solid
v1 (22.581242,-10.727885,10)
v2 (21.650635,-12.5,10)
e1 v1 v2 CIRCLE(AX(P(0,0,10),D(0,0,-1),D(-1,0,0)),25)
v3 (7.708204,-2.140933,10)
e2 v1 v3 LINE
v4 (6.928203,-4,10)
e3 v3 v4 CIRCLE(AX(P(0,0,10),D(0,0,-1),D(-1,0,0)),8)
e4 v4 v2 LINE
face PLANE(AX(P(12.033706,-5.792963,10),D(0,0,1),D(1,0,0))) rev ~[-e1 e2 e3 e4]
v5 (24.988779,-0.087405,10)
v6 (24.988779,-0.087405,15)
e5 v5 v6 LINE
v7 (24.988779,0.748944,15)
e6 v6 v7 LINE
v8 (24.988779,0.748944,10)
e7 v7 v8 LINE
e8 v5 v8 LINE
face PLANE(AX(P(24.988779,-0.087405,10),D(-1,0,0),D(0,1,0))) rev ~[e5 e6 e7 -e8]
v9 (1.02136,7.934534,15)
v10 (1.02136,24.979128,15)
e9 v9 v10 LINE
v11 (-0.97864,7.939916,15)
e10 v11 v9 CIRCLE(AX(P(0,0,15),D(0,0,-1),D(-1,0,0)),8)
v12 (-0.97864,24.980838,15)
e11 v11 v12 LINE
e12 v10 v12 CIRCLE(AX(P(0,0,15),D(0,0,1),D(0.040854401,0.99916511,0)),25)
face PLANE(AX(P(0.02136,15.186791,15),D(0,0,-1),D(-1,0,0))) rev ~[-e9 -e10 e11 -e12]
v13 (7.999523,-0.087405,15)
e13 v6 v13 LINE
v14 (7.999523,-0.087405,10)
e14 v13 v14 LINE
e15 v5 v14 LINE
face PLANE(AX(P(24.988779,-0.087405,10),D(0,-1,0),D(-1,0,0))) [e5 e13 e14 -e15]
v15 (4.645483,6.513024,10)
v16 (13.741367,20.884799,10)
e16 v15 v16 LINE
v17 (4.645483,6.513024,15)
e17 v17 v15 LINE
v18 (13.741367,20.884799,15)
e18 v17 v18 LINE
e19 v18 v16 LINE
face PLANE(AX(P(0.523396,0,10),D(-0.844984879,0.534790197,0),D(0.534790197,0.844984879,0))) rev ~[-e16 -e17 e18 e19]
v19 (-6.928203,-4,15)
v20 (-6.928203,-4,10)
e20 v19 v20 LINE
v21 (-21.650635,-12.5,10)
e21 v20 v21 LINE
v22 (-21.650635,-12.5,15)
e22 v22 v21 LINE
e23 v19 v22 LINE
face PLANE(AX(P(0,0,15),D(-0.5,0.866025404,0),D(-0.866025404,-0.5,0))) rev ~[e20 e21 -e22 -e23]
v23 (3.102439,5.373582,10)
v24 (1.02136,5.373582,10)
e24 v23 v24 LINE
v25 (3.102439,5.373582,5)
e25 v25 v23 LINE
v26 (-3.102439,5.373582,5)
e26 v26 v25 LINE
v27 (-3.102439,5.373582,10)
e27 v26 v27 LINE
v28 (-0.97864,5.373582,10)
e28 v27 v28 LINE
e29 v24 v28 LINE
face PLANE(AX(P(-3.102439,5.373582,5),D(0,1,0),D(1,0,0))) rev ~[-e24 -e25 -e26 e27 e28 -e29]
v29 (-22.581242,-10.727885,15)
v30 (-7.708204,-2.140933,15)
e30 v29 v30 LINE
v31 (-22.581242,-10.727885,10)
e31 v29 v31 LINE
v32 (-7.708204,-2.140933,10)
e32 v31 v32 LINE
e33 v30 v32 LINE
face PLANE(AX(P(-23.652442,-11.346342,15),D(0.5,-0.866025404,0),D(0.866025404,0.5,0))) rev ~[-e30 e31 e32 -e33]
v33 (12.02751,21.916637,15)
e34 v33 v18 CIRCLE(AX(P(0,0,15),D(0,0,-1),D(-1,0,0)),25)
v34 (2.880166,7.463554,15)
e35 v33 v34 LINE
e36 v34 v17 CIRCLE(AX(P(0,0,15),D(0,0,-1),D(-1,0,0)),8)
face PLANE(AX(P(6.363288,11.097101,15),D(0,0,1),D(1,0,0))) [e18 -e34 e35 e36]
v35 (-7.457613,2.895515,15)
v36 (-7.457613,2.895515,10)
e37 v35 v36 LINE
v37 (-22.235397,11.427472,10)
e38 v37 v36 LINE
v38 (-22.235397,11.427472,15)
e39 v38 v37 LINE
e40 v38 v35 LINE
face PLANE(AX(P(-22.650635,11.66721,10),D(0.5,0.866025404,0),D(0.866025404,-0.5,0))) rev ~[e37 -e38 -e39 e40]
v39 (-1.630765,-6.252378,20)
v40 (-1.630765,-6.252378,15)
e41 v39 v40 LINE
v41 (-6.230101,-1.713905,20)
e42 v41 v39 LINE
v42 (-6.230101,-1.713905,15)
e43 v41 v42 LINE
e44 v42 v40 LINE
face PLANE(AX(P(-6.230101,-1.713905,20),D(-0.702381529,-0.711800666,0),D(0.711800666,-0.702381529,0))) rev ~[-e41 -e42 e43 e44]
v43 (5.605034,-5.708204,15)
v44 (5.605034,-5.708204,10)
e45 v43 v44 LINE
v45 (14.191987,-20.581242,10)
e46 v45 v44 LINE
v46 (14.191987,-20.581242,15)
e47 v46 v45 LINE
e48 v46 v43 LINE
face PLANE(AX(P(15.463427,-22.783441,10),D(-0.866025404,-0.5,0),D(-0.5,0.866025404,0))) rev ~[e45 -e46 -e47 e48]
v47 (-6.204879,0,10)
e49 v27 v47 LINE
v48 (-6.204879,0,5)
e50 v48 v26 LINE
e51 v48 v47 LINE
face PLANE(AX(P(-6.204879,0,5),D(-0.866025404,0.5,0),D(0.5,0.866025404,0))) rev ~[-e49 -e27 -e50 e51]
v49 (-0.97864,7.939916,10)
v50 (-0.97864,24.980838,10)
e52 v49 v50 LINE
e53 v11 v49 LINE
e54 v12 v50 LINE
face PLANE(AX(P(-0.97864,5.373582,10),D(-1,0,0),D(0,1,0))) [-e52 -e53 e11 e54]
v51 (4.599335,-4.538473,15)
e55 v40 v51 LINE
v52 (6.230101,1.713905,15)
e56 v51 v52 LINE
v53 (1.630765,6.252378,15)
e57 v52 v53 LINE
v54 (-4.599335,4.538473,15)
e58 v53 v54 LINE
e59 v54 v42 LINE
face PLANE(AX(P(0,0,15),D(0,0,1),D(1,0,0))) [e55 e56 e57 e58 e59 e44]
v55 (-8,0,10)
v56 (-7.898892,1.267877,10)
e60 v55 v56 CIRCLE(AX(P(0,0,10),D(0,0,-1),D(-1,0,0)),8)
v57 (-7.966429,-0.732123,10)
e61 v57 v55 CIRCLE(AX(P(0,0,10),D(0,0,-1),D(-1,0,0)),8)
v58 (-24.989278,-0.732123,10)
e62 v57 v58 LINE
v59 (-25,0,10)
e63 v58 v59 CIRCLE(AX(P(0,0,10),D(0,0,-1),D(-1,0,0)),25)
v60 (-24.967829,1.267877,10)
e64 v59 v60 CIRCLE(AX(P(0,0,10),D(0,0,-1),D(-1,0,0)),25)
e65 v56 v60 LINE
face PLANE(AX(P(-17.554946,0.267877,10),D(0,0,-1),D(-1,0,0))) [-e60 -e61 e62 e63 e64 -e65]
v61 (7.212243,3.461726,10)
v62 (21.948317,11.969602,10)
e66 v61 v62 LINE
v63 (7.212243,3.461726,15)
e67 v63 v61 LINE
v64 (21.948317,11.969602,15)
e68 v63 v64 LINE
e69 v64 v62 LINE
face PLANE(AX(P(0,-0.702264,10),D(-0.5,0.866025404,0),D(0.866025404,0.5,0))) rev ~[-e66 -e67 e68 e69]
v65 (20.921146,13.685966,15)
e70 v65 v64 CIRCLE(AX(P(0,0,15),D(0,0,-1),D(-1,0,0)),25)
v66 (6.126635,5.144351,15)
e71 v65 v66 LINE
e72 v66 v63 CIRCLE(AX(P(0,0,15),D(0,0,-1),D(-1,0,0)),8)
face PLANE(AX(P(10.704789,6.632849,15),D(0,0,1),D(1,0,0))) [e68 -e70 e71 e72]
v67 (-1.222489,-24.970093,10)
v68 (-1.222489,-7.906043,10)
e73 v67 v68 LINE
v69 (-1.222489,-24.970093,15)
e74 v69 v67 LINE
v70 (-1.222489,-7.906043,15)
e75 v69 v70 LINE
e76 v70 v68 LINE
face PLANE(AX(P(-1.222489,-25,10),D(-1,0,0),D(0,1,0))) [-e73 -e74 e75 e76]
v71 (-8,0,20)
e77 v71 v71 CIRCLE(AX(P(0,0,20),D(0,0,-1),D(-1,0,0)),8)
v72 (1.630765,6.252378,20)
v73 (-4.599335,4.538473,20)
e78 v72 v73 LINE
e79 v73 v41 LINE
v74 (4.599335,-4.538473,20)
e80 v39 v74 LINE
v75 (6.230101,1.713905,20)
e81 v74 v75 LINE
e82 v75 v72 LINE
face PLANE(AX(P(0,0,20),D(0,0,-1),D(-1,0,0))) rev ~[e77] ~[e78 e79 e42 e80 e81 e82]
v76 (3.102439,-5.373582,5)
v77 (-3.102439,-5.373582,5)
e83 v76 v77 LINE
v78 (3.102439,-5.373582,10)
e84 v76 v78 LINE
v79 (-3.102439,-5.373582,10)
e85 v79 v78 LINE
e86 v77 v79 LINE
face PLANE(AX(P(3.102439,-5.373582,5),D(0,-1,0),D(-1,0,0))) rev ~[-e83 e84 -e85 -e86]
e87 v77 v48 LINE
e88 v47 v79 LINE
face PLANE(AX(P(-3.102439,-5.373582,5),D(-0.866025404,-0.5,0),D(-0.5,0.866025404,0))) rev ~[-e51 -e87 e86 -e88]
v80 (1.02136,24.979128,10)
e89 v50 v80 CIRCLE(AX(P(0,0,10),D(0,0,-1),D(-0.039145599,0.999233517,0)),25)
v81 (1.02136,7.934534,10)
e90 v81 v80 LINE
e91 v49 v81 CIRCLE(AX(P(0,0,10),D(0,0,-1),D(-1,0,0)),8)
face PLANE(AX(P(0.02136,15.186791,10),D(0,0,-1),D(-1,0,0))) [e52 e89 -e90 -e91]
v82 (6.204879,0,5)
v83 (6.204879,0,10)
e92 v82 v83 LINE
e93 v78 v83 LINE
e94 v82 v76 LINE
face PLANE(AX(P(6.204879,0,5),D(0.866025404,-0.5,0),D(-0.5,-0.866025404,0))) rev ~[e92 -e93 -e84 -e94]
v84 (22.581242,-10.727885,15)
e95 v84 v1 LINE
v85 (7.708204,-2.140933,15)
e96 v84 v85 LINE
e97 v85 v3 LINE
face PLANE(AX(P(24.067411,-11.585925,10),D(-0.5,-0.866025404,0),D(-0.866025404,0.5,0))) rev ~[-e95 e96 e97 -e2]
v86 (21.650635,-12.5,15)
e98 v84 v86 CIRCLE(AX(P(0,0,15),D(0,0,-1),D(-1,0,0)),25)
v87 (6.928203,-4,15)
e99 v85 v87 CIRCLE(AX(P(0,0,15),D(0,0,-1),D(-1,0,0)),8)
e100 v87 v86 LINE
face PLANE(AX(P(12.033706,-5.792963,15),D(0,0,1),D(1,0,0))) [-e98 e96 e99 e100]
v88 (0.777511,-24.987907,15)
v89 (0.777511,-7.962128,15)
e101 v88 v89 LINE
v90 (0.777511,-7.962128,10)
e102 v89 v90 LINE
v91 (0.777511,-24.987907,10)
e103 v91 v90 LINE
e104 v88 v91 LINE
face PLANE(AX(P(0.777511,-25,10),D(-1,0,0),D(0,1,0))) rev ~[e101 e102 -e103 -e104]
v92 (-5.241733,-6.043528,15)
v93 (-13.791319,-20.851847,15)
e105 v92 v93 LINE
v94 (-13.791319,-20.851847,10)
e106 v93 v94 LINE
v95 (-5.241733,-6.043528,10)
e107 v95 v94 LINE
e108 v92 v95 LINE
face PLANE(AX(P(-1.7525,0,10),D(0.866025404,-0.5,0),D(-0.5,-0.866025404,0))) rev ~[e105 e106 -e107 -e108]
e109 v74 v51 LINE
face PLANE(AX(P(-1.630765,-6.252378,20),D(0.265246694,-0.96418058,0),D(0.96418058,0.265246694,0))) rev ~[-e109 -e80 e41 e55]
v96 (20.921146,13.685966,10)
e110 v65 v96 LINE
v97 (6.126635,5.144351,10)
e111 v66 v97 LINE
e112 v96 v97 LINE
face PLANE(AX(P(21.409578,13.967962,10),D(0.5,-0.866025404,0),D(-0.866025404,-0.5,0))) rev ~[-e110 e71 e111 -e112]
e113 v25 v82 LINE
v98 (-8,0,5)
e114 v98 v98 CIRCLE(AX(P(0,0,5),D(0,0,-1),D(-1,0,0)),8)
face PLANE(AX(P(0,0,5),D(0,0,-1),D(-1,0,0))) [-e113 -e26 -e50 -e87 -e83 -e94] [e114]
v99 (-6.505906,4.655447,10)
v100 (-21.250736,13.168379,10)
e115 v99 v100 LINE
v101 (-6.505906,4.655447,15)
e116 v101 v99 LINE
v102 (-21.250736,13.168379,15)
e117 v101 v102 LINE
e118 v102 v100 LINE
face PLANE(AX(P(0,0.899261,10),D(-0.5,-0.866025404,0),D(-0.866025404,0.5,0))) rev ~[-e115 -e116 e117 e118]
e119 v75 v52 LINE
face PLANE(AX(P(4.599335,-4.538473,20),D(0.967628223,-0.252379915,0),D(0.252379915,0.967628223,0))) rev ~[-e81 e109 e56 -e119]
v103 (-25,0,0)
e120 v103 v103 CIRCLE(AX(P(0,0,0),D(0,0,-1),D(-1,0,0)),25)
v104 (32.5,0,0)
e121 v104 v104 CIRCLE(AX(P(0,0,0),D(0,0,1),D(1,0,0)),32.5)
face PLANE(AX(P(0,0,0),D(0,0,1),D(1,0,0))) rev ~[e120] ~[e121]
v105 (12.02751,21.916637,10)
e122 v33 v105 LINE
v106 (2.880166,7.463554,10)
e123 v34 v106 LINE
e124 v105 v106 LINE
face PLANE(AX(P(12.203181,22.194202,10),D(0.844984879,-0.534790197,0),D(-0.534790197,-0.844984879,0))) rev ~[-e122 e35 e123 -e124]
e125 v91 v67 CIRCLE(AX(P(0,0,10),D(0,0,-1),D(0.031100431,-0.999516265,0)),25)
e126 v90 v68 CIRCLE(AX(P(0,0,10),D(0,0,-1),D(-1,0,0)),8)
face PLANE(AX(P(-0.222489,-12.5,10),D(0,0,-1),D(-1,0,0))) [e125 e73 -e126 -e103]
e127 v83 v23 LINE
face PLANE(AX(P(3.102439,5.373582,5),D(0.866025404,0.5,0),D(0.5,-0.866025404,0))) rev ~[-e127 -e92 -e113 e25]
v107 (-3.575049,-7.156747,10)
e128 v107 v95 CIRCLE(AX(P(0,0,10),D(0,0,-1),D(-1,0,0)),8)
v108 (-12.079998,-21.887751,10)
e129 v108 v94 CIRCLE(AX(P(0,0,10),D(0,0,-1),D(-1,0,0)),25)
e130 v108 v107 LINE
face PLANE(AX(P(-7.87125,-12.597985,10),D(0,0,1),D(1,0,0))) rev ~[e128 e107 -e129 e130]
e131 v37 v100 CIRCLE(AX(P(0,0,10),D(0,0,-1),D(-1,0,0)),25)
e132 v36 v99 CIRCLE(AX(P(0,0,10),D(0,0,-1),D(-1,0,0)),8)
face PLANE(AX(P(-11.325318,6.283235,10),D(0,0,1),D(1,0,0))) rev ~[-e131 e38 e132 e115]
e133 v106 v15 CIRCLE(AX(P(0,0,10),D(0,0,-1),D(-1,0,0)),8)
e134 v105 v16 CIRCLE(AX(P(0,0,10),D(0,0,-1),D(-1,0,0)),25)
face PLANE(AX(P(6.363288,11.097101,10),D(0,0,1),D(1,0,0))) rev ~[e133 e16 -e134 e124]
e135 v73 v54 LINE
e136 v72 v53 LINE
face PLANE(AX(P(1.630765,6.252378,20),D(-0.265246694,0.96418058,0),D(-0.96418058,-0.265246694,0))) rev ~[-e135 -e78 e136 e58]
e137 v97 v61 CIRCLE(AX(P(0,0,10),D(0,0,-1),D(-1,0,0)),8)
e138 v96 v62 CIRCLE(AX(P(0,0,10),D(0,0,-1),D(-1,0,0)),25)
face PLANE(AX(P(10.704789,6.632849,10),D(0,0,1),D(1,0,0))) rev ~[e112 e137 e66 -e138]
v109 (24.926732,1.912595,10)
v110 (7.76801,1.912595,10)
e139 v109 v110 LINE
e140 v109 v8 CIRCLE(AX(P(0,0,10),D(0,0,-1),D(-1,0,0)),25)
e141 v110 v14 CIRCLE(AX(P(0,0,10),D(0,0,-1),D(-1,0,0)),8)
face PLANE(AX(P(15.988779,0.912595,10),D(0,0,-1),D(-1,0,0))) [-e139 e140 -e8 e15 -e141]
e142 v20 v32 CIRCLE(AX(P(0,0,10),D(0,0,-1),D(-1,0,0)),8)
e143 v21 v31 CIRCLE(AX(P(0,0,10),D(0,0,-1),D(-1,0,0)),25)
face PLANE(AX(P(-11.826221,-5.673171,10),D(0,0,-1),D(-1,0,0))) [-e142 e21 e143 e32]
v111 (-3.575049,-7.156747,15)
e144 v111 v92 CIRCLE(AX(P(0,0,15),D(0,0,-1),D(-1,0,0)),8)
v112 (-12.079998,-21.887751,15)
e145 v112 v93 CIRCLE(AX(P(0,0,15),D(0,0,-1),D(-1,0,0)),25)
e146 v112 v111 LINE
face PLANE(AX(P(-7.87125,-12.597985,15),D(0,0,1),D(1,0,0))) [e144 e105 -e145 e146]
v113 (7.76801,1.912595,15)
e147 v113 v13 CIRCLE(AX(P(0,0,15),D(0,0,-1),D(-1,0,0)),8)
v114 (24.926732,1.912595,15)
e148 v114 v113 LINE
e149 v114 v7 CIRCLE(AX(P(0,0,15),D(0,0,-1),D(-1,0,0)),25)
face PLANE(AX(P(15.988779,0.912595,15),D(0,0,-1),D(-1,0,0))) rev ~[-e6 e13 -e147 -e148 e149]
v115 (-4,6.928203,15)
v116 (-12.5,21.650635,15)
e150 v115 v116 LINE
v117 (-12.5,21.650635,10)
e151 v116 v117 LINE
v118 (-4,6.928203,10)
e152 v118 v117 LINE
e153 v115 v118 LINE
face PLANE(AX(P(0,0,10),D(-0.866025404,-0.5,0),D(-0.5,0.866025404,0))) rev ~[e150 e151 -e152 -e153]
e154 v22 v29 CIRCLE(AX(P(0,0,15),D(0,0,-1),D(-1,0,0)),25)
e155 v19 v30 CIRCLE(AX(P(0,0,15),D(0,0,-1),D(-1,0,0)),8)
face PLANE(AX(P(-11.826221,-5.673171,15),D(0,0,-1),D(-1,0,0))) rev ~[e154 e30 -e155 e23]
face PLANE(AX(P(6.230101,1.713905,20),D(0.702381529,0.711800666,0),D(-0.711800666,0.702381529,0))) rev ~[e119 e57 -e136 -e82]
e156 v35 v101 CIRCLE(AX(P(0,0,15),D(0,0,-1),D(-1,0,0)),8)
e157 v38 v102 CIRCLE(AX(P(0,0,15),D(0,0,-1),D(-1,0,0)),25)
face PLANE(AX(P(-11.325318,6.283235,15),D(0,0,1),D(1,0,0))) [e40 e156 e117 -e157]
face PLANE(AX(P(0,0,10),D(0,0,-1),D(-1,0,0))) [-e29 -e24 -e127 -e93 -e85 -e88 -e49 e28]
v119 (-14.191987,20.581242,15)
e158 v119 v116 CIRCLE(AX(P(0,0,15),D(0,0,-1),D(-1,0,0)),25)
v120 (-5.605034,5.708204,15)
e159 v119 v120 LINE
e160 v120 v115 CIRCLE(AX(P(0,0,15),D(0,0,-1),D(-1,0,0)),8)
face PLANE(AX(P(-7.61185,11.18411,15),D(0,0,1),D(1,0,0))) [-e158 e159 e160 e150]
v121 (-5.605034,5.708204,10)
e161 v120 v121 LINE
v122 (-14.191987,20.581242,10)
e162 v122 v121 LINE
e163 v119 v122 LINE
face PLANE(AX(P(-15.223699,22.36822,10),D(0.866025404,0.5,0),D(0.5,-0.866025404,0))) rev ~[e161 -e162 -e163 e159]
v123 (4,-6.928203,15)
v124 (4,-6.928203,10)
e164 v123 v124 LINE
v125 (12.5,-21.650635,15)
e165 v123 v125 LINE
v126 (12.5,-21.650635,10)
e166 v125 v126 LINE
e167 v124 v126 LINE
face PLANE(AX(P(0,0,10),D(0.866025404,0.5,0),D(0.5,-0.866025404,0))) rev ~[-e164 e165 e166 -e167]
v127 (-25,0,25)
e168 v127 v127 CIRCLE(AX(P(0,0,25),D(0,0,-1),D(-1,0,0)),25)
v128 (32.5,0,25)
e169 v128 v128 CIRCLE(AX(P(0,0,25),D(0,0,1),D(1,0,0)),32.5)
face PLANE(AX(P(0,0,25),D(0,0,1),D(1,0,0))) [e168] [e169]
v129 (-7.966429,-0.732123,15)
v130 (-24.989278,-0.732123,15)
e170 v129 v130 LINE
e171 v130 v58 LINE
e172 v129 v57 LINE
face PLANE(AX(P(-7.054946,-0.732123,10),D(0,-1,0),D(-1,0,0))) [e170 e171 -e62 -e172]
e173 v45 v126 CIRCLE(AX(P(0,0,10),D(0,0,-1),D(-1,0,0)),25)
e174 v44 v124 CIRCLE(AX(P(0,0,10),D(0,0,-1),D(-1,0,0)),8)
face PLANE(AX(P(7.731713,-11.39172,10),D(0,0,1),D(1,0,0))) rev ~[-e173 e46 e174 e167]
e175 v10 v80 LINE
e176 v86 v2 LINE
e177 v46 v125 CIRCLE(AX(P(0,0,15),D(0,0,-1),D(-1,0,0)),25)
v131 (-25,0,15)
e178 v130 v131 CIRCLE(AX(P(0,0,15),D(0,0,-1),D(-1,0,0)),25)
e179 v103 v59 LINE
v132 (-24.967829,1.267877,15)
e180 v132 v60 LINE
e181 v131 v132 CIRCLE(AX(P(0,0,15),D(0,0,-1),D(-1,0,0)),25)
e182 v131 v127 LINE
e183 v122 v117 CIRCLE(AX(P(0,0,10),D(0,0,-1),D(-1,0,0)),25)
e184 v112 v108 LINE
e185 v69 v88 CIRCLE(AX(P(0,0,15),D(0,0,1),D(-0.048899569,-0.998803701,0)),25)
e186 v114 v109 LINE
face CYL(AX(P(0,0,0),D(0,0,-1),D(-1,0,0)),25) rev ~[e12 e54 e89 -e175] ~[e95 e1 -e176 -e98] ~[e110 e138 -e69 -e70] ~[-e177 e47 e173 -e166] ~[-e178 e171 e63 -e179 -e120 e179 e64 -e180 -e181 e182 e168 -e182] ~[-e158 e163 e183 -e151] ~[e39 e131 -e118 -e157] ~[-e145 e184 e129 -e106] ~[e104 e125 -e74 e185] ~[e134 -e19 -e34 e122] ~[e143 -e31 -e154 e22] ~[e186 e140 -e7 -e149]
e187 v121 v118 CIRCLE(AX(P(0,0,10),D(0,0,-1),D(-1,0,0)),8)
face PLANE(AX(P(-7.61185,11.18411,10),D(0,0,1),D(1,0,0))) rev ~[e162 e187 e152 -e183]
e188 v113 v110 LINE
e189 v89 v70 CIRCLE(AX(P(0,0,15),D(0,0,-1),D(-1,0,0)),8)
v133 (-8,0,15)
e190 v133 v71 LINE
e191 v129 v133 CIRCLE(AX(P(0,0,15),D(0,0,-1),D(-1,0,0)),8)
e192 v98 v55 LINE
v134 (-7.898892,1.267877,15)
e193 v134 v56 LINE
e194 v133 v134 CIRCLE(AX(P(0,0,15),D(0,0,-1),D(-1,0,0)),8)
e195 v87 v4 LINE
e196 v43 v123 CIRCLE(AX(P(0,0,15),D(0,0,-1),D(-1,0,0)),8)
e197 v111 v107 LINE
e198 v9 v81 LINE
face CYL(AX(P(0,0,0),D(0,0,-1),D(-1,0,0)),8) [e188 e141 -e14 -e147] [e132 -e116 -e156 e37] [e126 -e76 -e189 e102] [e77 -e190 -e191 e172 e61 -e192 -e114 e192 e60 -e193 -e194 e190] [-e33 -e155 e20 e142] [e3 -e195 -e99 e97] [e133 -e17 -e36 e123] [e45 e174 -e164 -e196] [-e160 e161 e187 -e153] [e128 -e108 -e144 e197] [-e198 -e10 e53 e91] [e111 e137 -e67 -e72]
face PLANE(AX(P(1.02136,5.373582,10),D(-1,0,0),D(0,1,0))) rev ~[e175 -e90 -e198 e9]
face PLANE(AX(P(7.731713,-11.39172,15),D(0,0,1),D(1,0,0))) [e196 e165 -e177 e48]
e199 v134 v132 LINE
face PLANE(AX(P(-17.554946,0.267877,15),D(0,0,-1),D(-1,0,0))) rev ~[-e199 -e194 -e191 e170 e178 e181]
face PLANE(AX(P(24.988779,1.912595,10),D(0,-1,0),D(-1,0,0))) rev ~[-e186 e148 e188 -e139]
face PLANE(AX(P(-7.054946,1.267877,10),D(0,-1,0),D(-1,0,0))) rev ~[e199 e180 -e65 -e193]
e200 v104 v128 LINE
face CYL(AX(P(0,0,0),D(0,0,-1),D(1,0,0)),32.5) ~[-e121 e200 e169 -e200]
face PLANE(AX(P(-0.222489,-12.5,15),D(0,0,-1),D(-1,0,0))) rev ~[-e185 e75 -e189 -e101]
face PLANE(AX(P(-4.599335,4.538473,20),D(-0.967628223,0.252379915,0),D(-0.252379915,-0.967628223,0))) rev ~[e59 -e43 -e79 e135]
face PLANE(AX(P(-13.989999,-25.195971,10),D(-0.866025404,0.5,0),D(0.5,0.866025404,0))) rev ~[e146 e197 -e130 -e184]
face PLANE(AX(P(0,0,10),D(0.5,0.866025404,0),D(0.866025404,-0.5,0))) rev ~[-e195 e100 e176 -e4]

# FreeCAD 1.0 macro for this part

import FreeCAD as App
import Part
import Sketcher
Q = App.Units.Quantity

doc = App.newDocument("Part")
params = doc.addObject("Spreadsheet::Sheet", "Params")
for row, (alias, value) in enumerate([
    ("sketch1_diameter", "65 mm"),
    ("pad1_length", "25 mm"),
    ("sketch2_diameter", "50 mm"),
    ("pocket1_length", "25 mm"),
    ("sketch3_diameter", "16 mm"),
    ("pad2_length", "20 mm"),
    ("sketch4_diameter", "16 mm"),
    ("pocket2_length", "5 mm"),
    ("pocket3_length", "5 mm"),
    ("pocket4_length", "5 mm"),
    ("sketch7_width", "21 mm"),
    ("sketch7_height", "2 mm"),
    ("pad3_length", "5 mm"),
    ("sketch8_width", "18 mm"),
    ("sketch8_height", "2 mm"),
    ("pad4_length", "5 mm"),
    ("sketch9_width", "2 mm"),
    ("pad5_length", "5 mm"),
    ("sketch10_width", "2 mm"),
    ("sketch10_height", "25 mm"),
    ("pad6_length", "5 mm"),
    ("sketch11_length", "25 mm"),
    ("sketch11_length2", "2 mm"),
    ("pad7_length", "5 mm"),
    ("sketch12_length", "2 mm"),
    ("pad8_length", "5 mm"),
    ("sketch13_length", "25 mm"),
    ("sketch13_length2", "2 mm"),
    ("pad9_length", "5 mm"),
    ("sketch14_length", "2 mm"),
    ("pad10_length", "5 mm"),
    ("sketch15_length", "2 mm"),
    ("pad11_length", "5 mm"),
    ("sketch16_length", "2 mm"),
    ("pad12_length", "5 mm"),
    ("sketch17_length", "2 mm"),
    ("pad13_length", "5 mm"),
    ("sketch18_length", "2 mm"),
    ("pad14_length", "5 mm"),
], start=1):
    params.set(f"A{row}", alias)
    params.set(f"B{row}", "=" + value)
    params.setAlias(f"B{row}", alias)

body = doc.addObject("PartDesign::Body", "Body")

sketch1 = body.newObject("Sketcher::SketchObject", "Sketch")
sketch1.AttachmentSupport = (doc.getObject("XY_Plane"), [""])
sketch1.MapMode = "FlatFace"
sketch1.addGeometry(Part.Circle(App.Vector(0, 0, 0), App.Vector(0, 0, 1), 32), False)
sketch1.addConstraint(Sketcher.Constraint("Coincident", 0, 3, -1, 1))
sketch1.addConstraint(Sketcher.Constraint("Diameter", 0, Q("65 mm")))
sketch1.setExpression("Constraints[1]", "Params.sketch1_diameter")
pad1 = body.newObject("PartDesign::Pad", "Pad")
pad1.Profile = sketch1
pad1.setExpression("Length", "Params.pad1_length")

sketch2 = body.newObject("Sketcher::SketchObject", "Sketch001")
sketch2.AttachmentSupport = (doc.getObject("XY_Plane"), [""])
sketch2.MapMode = "FlatFace"
sketch2.addGeometry(Part.Circle(App.Vector(0, 0, 0), App.Vector(0, 0, 1), 25), False)
sketch2.addConstraint(Sketcher.Constraint("Coincident", 0, 3, -1, 1))
sketch2.addConstraint(Sketcher.Constraint("Diameter", 0, Q("50 mm")))
sketch2.setExpression("Constraints[1]", "Params.sketch2_diameter")
pocket1 = body.newObject("PartDesign::Pocket", "Pocket")
pocket1.Profile = sketch2
pocket1.setExpression("Length", "Params.pocket1_length")
pocket1.Reversed = True
body2 = doc.addObject("PartDesign::Body", "Body001")

sketch3 = body2.newObject("Sketcher::SketchObject", "Sketch002")
sketch3.AttachmentSupport = (doc.getObject("XY_Plane001"), [""])
sketch3.MapMode = "FlatFace"
sketch3.addGeometry(Part.Circle(App.Vector(0, 0, 0), App.Vector(0, 0, 1), 8), False)
sketch3.addConstraint(Sketcher.Constraint("Coincident", 0, 3, -1, 1))
sketch3.addConstraint(Sketcher.Constraint("Diameter", 0, Q("16 mm")))
sketch3.setExpression("Constraints[1]", "Params.sketch3_diameter")
pad2 = body2.newObject("PartDesign::Pad", "Pad001")
pad2.Profile = sketch3
pad2.setExpression("Length", "Params.pad2_length")

sketch4 = body2.newObject("Sketcher::SketchObject", "Sketch003")
sketch4.AttachmentSupport = (doc.getObject("XY_Plane001"), [""])
sketch4.MapMode = "FlatFace"
sketch4.addGeometry(Part.Circle(App.Vector(0, 0, 0), App.Vector(0, 0, 1), 8), False)
sketch4.addConstraint(Sketcher.Constraint("Coincident", 0, 3, -1, 1))
sketch4.addConstraint(Sketcher.Constraint("Diameter", 0, Q("16 mm")))
sketch4.setExpression("Constraints[1]", "Params.sketch4_diameter")
pocket2 = body2.newObject("PartDesign::Pocket", "Pocket001")
pocket2.Profile = sketch4
pocket2.setExpression("Length", "Params.pocket2_length")
pocket2.Reversed = True

sketch5 = body2.newObject("Sketcher::SketchObject", "Sketch004")
sketch5.AttachmentSupport = (doc.getObject("XY_Plane001"), [""])
sketch5.MapMode = "FlatFace"
sketch5.AttachmentOffset = App.Placement(App.Vector(0, 0, 5), App.Rotation())
sketch5.addGeometry(Part.LineSegment(App.Vector(-6, 0, 0), App.Vector(-3, 5, 0)), False)
sketch5.addGeometry(Part.LineSegment(App.Vector(-3, 5, 0), App.Vector(3, 5, 0)), False)
sketch5.addGeometry(Part.LineSegment(App.Vector(3, 5, 0), App.Vector(6, 0, 0)), False)
sketch5.addGeometry(Part.LineSegment(App.Vector(6, 0, 0), App.Vector(3, -5, 0)), False)
sketch5.addGeometry(Part.LineSegment(App.Vector(3, -5, 0), App.Vector(-3, -5, 0)), False)
sketch5.addGeometry(Part.LineSegment(App.Vector(-3, -5, 0), App.Vector(-6, 0, 0)), False)
sketch5.addConstraint(Sketcher.Constraint("Coincident", 0, 2, 1, 1))
sketch5.addConstraint(Sketcher.Constraint("Coincident", 1, 2, 2, 1))
sketch5.addConstraint(Sketcher.Constraint("Coincident", 2, 2, 3, 1))
sketch5.addConstraint(Sketcher.Constraint("Coincident", 3, 2, 4, 1))
sketch5.addConstraint(Sketcher.Constraint("Coincident", 4, 2, 5, 1))
sketch5.addConstraint(Sketcher.Constraint("Coincident", 5, 2, 0, 1))
sketch5.addConstraint(Sketcher.Constraint("Horizontal", 1))
sketch5.addConstraint(Sketcher.Constraint("Horizontal", 4))
sketch5.addConstraint(Sketcher.Constraint("Symmetric", 0, 2, 3, 2, -1, 1))
sketch5.addConstraint(Sketcher.Constraint("Symmetric", 2, 2, 5, 2, -1, 1))
sketch5.addConstraint(Sketcher.Constraint("PointOnObject", 2, 2, -1))
sketch5.addConstraint(Sketcher.Constraint("Parallel", 2, 5))
sketch5.addConstraint(Sketcher.Constraint("Vertical", 1, 2, 3, 2))
sketch5.addConstraint(Sketcher.Constraint("Angle", 0, Q("60 deg")))
sketch5.addConstraint(Sketcher.Constraint("DistanceX", 1, 1, 1, 2, Q("6.204879 mm")))
sketch5.addConstraint(Sketcher.Constraint("Distance", 0, Q("6.204879 mm")))
pocket3 = body2.newObject("PartDesign::Pocket", "Pocket002")
pocket3.Profile = sketch5
pocket3.setExpression("Length", "Params.pocket3_length")
pocket3.Reversed = True

sketch6 = body2.newObject("Sketcher::SketchObject", "Sketch005")
sketch6.AttachmentSupport = (doc.getObject("XY_Plane001"), [""])
sketch6.MapMode = "FlatFace"
sketch6.AttachmentOffset = App.Placement(App.Vector(0, 0, 20), App.Rotation())
sketch6.addGeometry(Part.LineSegment(App.Vector(-2, -6, 0), App.Vector(5, -5, 0)), False)
sketch6.addGeometry(Part.LineSegment(App.Vector(5, -5, 0), App.Vector(6, 2, 0)), False)
sketch6.addGeometry(Part.LineSegment(App.Vector(6, 2, 0), App.Vector(2, 6, 0)), False)
sketch6.addGeometry(Part.LineSegment(App.Vector(2, 6, 0), App.Vector(-5, 5, 0)), False)
sketch6.addGeometry(Part.LineSegment(App.Vector(-5, 5, 0), App.Vector(-6, -2, 0)), False)
sketch6.addGeometry(Part.LineSegment(App.Vector(-6, -2, 0), App.Vector(-2, -6, 0)), False)
sketch6.addConstraint(Sketcher.Constraint("Coincident", 0, 2, 1, 1))
sketch6.addConstraint(Sketcher.Constraint("Coincident", 1, 2, 2, 1))
sketch6.addConstraint(Sketcher.Constraint("Coincident", 2, 2, 3, 1))
sketch6.addConstraint(Sketcher.Constraint("Coincident", 3, 2, 4, 1))
sketch6.addConstraint(Sketcher.Constraint("Coincident", 4, 2, 5, 1))
sketch6.addConstraint(Sketcher.Constraint("Coincident", 5, 2, 0, 1))
sketch6.addConstraint(Sketcher.Constraint("Symmetric", 0, 2, 3, 2, -1, 1))
sketch6.addConstraint(Sketcher.Constraint("Symmetric", 1, 2, 4, 2, -1, 1))
sketch6.addConstraint(Sketcher.Constraint("Symmetric", 2, 2, 5, 2, -1, 1))
sketch6.addConstraint(Sketcher.Constraint("Equal", 0, 1))
sketch6.addConstraint(Sketcher.Constraint("Equal", 1, 2))
sketch6.addConstraint(Sketcher.Constraint("DistanceX", -1, 1, 1, 2, Q("6.230101 mm")))
sketch6.addConstraint(Sketcher.Constraint("DistanceX", 3, 2, 2, 2, Q("6.230101 mm")))
sketch6.addConstraint(Sketcher.Constraint("Distance", 0, Q("6.46155 mm")))
sketch6.addConstraint(Sketcher.Constraint("DistanceX", 2, 2, 0, 2, Q("2.96857 mm")))
pocket4 = body2.newObject("PartDesign::Pocket", "Pocket003")
pocket4.Profile = sketch6
pocket4.setExpression("Length", "Params.pocket4_length")
body.AllowCompound = True
doc.recompute()

boolean = body.newObject("PartDesign::Boolean", "Boolean")
boolean.Type = "Fuse"
boolean.addObjects([body2])

sketch7 = body.newObject("Sketcher::SketchObject", "Sketch006")
sketch7.AttachmentSupport = (doc.getObject("XY_Plane"), [""])
sketch7.MapMode = "FlatFace"
sketch7.AttachmentOffset = App.Placement(App.Vector(0, 0, 10), App.Rotation())
sketch7.addGeometry(Part.LineSegment(App.Vector(-7.1, 1.3, 0), App.Vector(-7.1, -0.7, 0)), False)
sketch7.addGeometry(Part.LineSegment(App.Vector(-7.1, -0.7, 0), App.Vector(-28.1, -0.7, 0)), False)
sketch7.addGeometry(Part.LineSegment(App.Vector(-28.1, -0.7, 0), App.Vector(-28.1, 1.3, 0)), False)
sketch7.addGeometry(Part.LineSegment(App.Vector(-28.1, 1.3, 0), App.Vector(-7.1, 1.3, 0)), False)
sketch7.addConstraint(Sketcher.Constraint("Coincident", 0, 2, 1, 1))
sketch7.addConstraint(Sketcher.Constraint("Coincident", 1, 2, 2, 1))
sketch7.addConstraint(Sketcher.Constraint("Coincident", 2, 2, 3, 1))
sketch7.addConstraint(Sketcher.Constraint("Coincident", 3, 2, 0, 1))
sketch7.addConstraint(Sketcher.Constraint("Vertical", 0))
sketch7.addConstraint(Sketcher.Constraint("Horizontal", 1))
sketch7.addConstraint(Sketcher.Constraint("Vertical", 2))
sketch7.addConstraint(Sketcher.Constraint("Horizontal", 3))
sketch7.addConstraint(Sketcher.Constraint("DistanceX", 1, 2, 1, 1, Q("21 mm")))
sketch7.addConstraint(Sketcher.Constraint("DistanceY", 0, 2, 0, 1, Q("2 mm")))
sketch7.addConstraint(Sketcher.Constraint("DistanceX", 0, 2, -1, 1, Q("7.054946 mm")))
sketch7.addConstraint(Sketcher.Constraint("DistanceY", 0, 2, -1, 1, Q("0.732123 mm")))
sketch7.setExpression("Constraints[8]", "Params.sketch7_width")
sketch7.setExpression("Constraints[9]", "Params.sketch7_height")
pad3 = body.newObject("PartDesign::Pad", "Pad002")
pad3.Profile = sketch7
pad3.setExpression("Length", "Params.pad3_length")

sketch8 = body.newObject("Sketcher::SketchObject", "Sketch007")
sketch8.AttachmentSupport = (doc.getObject("XY_Plane"), [""])
sketch8.MapMode = "FlatFace"
sketch8.AttachmentOffset = App.Placement(App.Vector(0, 0, 10), App.Rotation())
sketch8.addGeometry(Part.LineSegment(App.Vector(25, 1.9, 0), App.Vector(25, -0.1, 0)), False)
sketch8.addGeometry(Part.LineSegment(App.Vector(25, -0.1, 0), App.Vector(7, -0.1, 0)), False)
sketch8.addGeometry(Part.LineSegment(App.Vector(7, -0.1, 0), App.Vector(7, 1.9, 0)), False)
sketch8.addGeometry(Part.LineSegment(App.Vector(7, 1.9, 0), App.Vector(25, 1.9, 0)), False)
sketch8.addConstraint(Sketcher.Constraint("Coincident", 0, 2, 1, 1))
sketch8.addConstraint(Sketcher.Constraint("Coincident", 1, 2, 2, 1))
sketch8.addConstraint(Sketcher.Constraint("Coincident", 2, 2, 3, 1))
sketch8.addConstraint(Sketcher.Constraint("Coincident", 3, 2, 0, 1))
sketch8.addConstraint(Sketcher.Constraint("Vertical", 0))
sketch8.addConstraint(Sketcher.Constraint("Horizontal", 1))
sketch8.addConstraint(Sketcher.Constraint("Vertical", 2))
sketch8.addConstraint(Sketcher.Constraint("Horizontal", 3))
sketch8.addConstraint(Sketcher.Constraint("DistanceX", 1, 2, 1, 1, Q("18 mm")))
sketch8.addConstraint(Sketcher.Constraint("DistanceY", 0, 2, 0, 1, Q("2 mm")))
sketch8.addConstraint(Sketcher.Constraint("DistanceX", -1, 1, 0, 2, Q("24.988779 mm")))
sketch8.addConstraint(Sketcher.Constraint("DistanceY", 0, 2, -1, 1, Q("0.087405 mm")))
sketch8.setExpression("Constraints[8]", "Params.sketch8_width")
sketch8.setExpression("Constraints[9]", "Params.sketch8_height")
pad4 = body.newObject("PartDesign::Pad", "Pad003")
pad4.Profile = sketch8
pad4.setExpression("Length", "Params.pad4_length")

sketch9 = body.newObject("Sketcher::SketchObject", "Sketch008")
sketch9.AttachmentSupport = (doc.getObject("XY_Plane"), [""])
sketch9.MapMode = "FlatFace"
sketch9.AttachmentOffset = App.Placement(App.Vector(0, 0, 10), App.Rotation())
sketch9.addGeometry(Part.LineSegment(App.Vector(1, 25, 0), App.Vector(1, 5.4, 0)), False)
sketch9.addGeometry(Part.LineSegment(App.Vector(1, 5.4, 0), App.Vector(-1, 5.4, 0)), False)
sketch9.addGeometry(Part.LineSegment(App.Vector(-1, 5.4, 0), App.Vector(-1, 25, 0)), False)
sketch9.addGeometry(Part.LineSegment(App.Vector(-1, 25, 0), App.Vector(1, 25, 0)), False)
sketch9.addConstraint(Sketcher.Constraint("Coincident", 0, 2, 1, 1))
sketch9.addConstraint(Sketcher.Constraint("Coincident", 1, 2, 2, 1))
sketch9.addConstraint(Sketcher.Constraint("Coincident", 2, 2, 3, 1))
sketch9.addConstraint(Sketcher.Constraint("Coincident", 3, 2, 0, 1))
sketch9.addConstraint(Sketcher.Constraint("Vertical", 0))
sketch9.addConstraint(Sketcher.Constraint("Horizontal", 1))
sketch9.addConstraint(Sketcher.Constraint("Vertical", 2))
sketch9.addConstraint(Sketcher.Constraint("Horizontal", 3))
sketch9.addConstraint(Sketcher.Constraint("DistanceX", 1, 2, 1, 1, Q("2 mm")))
sketch9.addConstraint(Sketcher.Constraint("DistanceY", -1, 1, 2, 2, Q("25 mm")))
sketch9.addConstraint(Sketcher.Constraint("DistanceY", 0, 2, 0, 1, Q("19.626418 mm")))
sketch9.addConstraint(Sketcher.Constraint("DistanceX", -1, 1, 0, 2, Q("1.02136 mm")))
sketch9.setExpression("Constraints[8]", "Params.sketch9_width")
pad5 = body.newObject("PartDesign::Pad", "Pad004")
pad5.Profile = sketch9
pad5.setExpression("Length", "Params.pad5_length")

sketch10 = body.newObject("Sketcher::SketchObject", "Sketch009")
sketch10.AttachmentSupport = (doc.getObject("XY_Plane"), [""])
sketch10.MapMode = "FlatFace"
sketch10.AttachmentOffset = App.Placement(App.Vector(0, 0, 10), App.Rotation())
sketch10.addGeometry(Part.LineSegment(App.Vector(0.8, 0, 0), App.Vector(0.8, -25, 0)), False)
sketch10.addGeometry(Part.LineSegment(App.Vector(0.8, -25, 0), App.Vector(-1.2, -25, 0)), False)
sketch10.addGeometry(Part.LineSegment(App.Vector(-1.2, -25, 0), App.Vector(-1.2, 0, 0)), False)
sketch10.addGeometry(Part.LineSegment(App.Vector(-1.2, 0, 0), App.Vector(0.8, 0, 0)), False)
sketch10.addConstraint(Sketcher.Constraint("Coincident", 0, 2, 1, 1))
sketch10.addConstraint(Sketcher.Constraint("Coincident", 1, 2, 2, 1))
sketch10.addConstraint(Sketcher.Constraint("Coincident", 2, 2, 3, 1))
sketch10.addConstraint(Sketcher.Constraint("Coincident", 3, 2, 0, 1))
sketch10.addConstraint(Sketcher.Constraint("Vertical", 0))
sketch10.addConstraint(Sketcher.Constraint("Horizontal", 1))
sketch10.addConstraint(Sketcher.Constraint("Vertical", 2))
sketch10.addConstraint(Sketcher.Constraint("Horizontal", 3))
sketch10.addConstraint(Sketcher.Constraint("PointOnObject", 2, 2, -1))
sketch10.addConstraint(Sketcher.Constraint("DistanceX", 1, 2, 1, 1, Q("2 mm")))
sketch10.addConstraint(Sketcher.Constraint("DistanceY", 0, 2, 0, 1, Q("25 mm")))
sketch10.addConstraint(Sketcher.Constraint("DistanceX", -1, 1, 0, 2, Q("0.777511 mm")))
sketch10.setExpression("Constraints[9]", "Params.sketch10_width")
sketch10.setExpression("Constraints[10]", "Params.sketch10_height")
pad6 = body.newObject("PartDesign::Pad", "Pad005")
pad6.Profile = sketch10
pad6.setExpression("Length", "Params.pad6_length")

sketch11 = body.newObject("Sketcher::SketchObject", "Sketch010")
sketch11.AttachmentSupport = (doc.getObject("XY_Plane"), [""])
sketch11.MapMode = "FlatFace"
sketch11.AttachmentOffset = App.Placement(App.Vector(0, 0, 10), App.Rotation())
sketch11.addGeometry(Part.LineSegment(App.Vector(13.9, 21.1, 0), App.Vector(0.5, 0, 0)), False)
sketch11.addGeometry(Part.LineSegment(App.Vector(0.5, 0, 0), App.Vector(-1.2, 1.1, 0)), False)
sketch11.addGeometry(Part.LineSegment(App.Vector(-1.2, 1.1, 0), App.Vector(12.2, 22.2, 0)), False)
sketch11.addGeometry(Part.LineSegment(App.Vector(12.2, 22.2, 0), App.Vector(13.9, 21.1, 0)), False)
sketch11.addConstraint(Sketcher.Constraint("Coincident", 0, 2, 1, 1))
sketch11.addConstraint(Sketcher.Constraint("Coincident", 1, 2, 2, 1))
sketch11.addConstraint(Sketcher.Constraint("Coincident", 2, 2, 3, 1))
sketch11.addConstraint(Sketcher.Constraint("Coincident", 3, 2, 0, 1))
sketch11.addConstraint(Sketcher.Constraint("PointOnObject", 0, 2, -1))
sketch11.addConstraint(Sketcher.Constraint("Perpendicular", 0, 1))
sketch11.addConstraint(Sketcher.Constraint("Perpendicular", 1, 2))
sketch11.addConstraint(Sketcher.Constraint("Perpendicular", 2, 3))
sketch11.addConstraint(Sketcher.Constraint("Distance", 0, Q("25 mm")))
sketch11.addConstraint(Sketcher.Constraint("Distance", 1, Q("2 mm")))
sketch11.addConstraint(Sketcher.Constraint("DistanceY", -1, 1, 1, 2, Q("1.06958 mm")))
sketch11.addConstraint(Sketcher.Constraint("DistanceX", -1, 1, 2, 2, Q("12.203181 mm")))
sketch11.setExpression("Constraints[8]", "Params.sketch11_length")
sketch11.setExpression("Constraints[9]", "Params.sketch11_length2")
pad7 = body.newObject("PartDesign::Pad", "Pad006")
pad7.Profile = sketch11
pad7.setExpression("Length", "Params.pad7_length")

sketch12 = body.newObject("Sketcher::SketchObject", "Sketch011")
sketch12.AttachmentSupport = (doc.getObject("XY_Plane"), [""])
sketch12.MapMode = "FlatFace"
sketch12.AttachmentOffset = App.Placement(App.Vector(0, 0, 10), App.Rotation())
sketch12.addGeometry(Part.LineSegment(App.Vector(22.4, 12.2, 0), App.Vector(0, -0.7, 0)), False)
sketch12.addGeometry(Part.LineSegment(App.Vector(0, -0.7, 0), App.Vector(-1, 1, 0)), False)
sketch12.addGeometry(Part.LineSegment(App.Vector(-1, 1, 0), App.Vector(21.4, 14, 0)), False)
sketch12.addGeometry(Part.LineSegment(App.Vector(21.4, 14, 0), App.Vector(22.4, 12.2, 0)), False)
sketch12.addConstraint(Sketcher.Constraint("Coincident", 0, 2, 1, 1))
sketch12.addConstraint(Sketcher.Constraint("Coincident", 1, 2, 2, 1))
sketch12.addConstraint(Sketcher.Constraint("Coincident", 2, 2, 3, 1))
sketch12.addConstraint(Sketcher.Constraint("Coincident", 3, 2, 0, 1))
sketch12.addConstraint(Sketcher.Constraint("PointOnObject", 0, 2, -2))
sketch12.addConstraint(Sketcher.Constraint("Perpendicular", 0, 1))
sketch12.addConstraint(Sketcher.Constraint("Perpendicular", 1, 2))
sketch12.addConstraint(Sketcher.Constraint("Perpendicular", 2, 3))
sketch12.addConstraint(Sketcher.Constraint("Angle", 0, Q("-150 deg")))
sketch12.addConstraint(Sketcher.Constraint("Distance", 1, Q("2 mm")))
sketch12.addConstraint(Sketcher.Constraint("Distance", 0, Q("25.876352 mm")))
sketch12.addConstraint(Sketcher.Constraint("DistanceY", -1, 1, 3, 2, Q("12.235911 mm")))
sketch12.setExpression("Constraints[9]", "Params.sketch12_length")
pad8 = body.newObject("PartDesign::Pad", "Pad007")
pad8.Profile = sketch12
pad8.setExpression("Length", "Params.pad8_length")

sketch13 = body.newObject("Sketcher::SketchObject", "Sketch012")
sketch13.AttachmentSupport = (doc.getObject("XY_Plane"), [""])
sketch13.MapMode = "FlatFace"
sketch13.AttachmentOffset = App.Placement(App.Vector(0, 0, 10), App.Rotation())
sketch13.addGeometry(Part.LineSegment(App.Vector(-21.7, 13.4, 0), App.Vector(0, 0.9, 0)), False)
sketch13.addGeometry(Part.LineSegment(App.Vector(0, 0.9, 0), App.Vector(-1, -0.8, 0)), False)
sketch13.addGeometry(Part.LineSegment(App.Vector(-1, -0.8, 0), App.Vector(-22.7, 11.7, 0)), False)
sketch13.addGeometry(Part.LineSegment(App.Vector(-22.7, 11.7, 0), App.Vector(-21.7, 13.4, 0)), False)
sketch13.addConstraint(Sketcher.Constraint("Coincident", 0, 2, 1, 1))
sketch13.addConstraint(Sketcher.Constraint("Coincident", 1, 2, 2, 1))
sketch13.addConstraint(Sketcher.Constraint("Coincident", 2, 2, 3, 1))
sketch13.addConstraint(Sketcher.Constraint("Coincident", 3, 2, 0, 1))
sketch13.addConstraint(Sketcher.Constraint("PointOnObject", 0, 2, -2))
sketch13.addConstraint(Sketcher.Constraint("Perpendicular", 0, 1))
sketch13.addConstraint(Sketcher.Constraint("Perpendicular", 1, 2))
sketch13.addConstraint(Sketcher.Constraint("Perpendicular", 2, 3))
sketch13.addConstraint(Sketcher.Constraint("Angle", 0, Q("-30 deg")))
sketch13.addConstraint(Sketcher.Constraint("Distance", 0, Q("25 mm")))
sketch13.addConstraint(Sketcher.Constraint("Distance", 1, Q("2 mm")))
sketch13.addConstraint(Sketcher.Constraint("DistanceY", -1, 1, 0, 2, Q("0.899261 mm")))
sketch13.setExpression("Constraints[9]", "Params.sketch13_length")
sketch13.setExpression("Constraints[10]", "Params.sketch13_length2")
pad9 = body.newObject("PartDesign::Pad", "Pad008")
pad9.Profile = sketch13
pad9.setExpression("Length", "Params.pad9_length")

sketch14 = body.newObject("Sketcher::SketchObject", "Sketch013")
sketch14.AttachmentSupport = (doc.getObject("XY_Plane"), [""])
sketch14.MapMode = "FlatFace"
sketch14.AttachmentOffset = App.Placement(App.Vector(0, 0, 10), App.Rotation())
sketch14.addGeometry(Part.LineSegment(App.Vector(-13.5, 23.4, 0), App.Vector(0, 0, 0)), False)
sketch14.addGeometry(Part.LineSegment(App.Vector(0, 0, 0), App.Vector(-1.7, -1, 0)), False)
sketch14.addGeometry(Part.LineSegment(App.Vector(-1.7, -1, 0), App.Vector(-15.2, 22.4, 0)), False)
sketch14.addGeometry(Part.LineSegment(App.Vector(-15.2, 22.4, 0), App.Vector(-13.5, 23.4, 0)), False)
sketch14.addConstraint(Sketcher.Constraint("Coincident", 0, 2, 1, 1))
sketch14.addConstraint(Sketcher.Constraint("Coincident", 1, 2, 2, 1))
sketch14.addConstraint(Sketcher.Constraint("Coincident", 2, 2, 3, 1))
sketch14.addConstraint(Sketcher.Constraint("Coincident", 3, 2, 0, 1))
sketch14.addConstraint(Sketcher.Constraint("Coincident", 0, 2, -1, 1))
sketch14.addConstraint(Sketcher.Constraint("Perpendicular", 0, 1))
sketch14.addConstraint(Sketcher.Constraint("Perpendicular", 1, 2))
sketch14.addConstraint(Sketcher.Constraint("Perpendicular", 2, 3))
sketch14.addConstraint(Sketcher.Constraint("Angle", 0, Q("-60 deg")))
sketch14.addConstraint(Sketcher.Constraint("Distance", 1, Q("2 mm")))
sketch14.addConstraint(Sketcher.Constraint("DistanceX", 2, 2, -1, 1, Q("15.223699 mm")))
sketch14.setExpression("Constraints[9]", "Params.sketch14_length")
pad10 = body.newObject("PartDesign::Pad", "Pad009")
pad10.Profile = sketch14
pad10.setExpression("Length", "Params.pad10_length")

sketch15 = body.newObject("Sketcher::SketchObject", "Sketch014")
sketch15.AttachmentSupport = (doc.getObject("XY_Plane"), [""])
sketch15.MapMode = "FlatFace"
sketch15.AttachmentOffset = App.Placement(App.Vector(0, 0, 10), App.Rotation())
sketch15.addGeometry(Part.LineSegment(App.Vector(23.1, -13.3, 0), App.Vector(0, 0, 0)), False)
sketch15.addGeometry(Part.LineSegment(App.Vector(0, 0, 0), App.Vector(1, 1.7, 0)), False)
sketch15.addGeometry(Part.LineSegment(App.Vector(1, 1.7, 0), App.Vector(24.1, -11.6, 0)), False)
sketch15.addGeometry(Part.LineSegment(App.Vector(24.1, -11.6, 0), App.Vector(23.1, -13.3, 0)), False)
sketch15.addConstraint(Sketcher.Constraint("Coincident", 0, 2, 1, 1))
sketch15.addConstraint(Sketcher.Constraint("Coincident", 1, 2, 2, 1))
sketch15.addConstraint(Sketcher.Constraint("Coincident", 2, 2, 3, 1))
sketch15.addConstraint(Sketcher.Constraint("Coincident", 3, 2, 0, 1))
sketch15.addConstraint(Sketcher.Constraint("Coincident", 0, 2, -1, 1))
sketch15.addConstraint(Sketcher.Constraint("Perpendicular", 0, 1))
sketch15.addConstraint(Sketcher.Constraint("Perpendicular", 1, 2))
sketch15.addConstraint(Sketcher.Constraint("Perpendicular", 2, 3))
sketch15.addConstraint(Sketcher.Constraint("Angle", 0, Q("150 deg")))
sketch15.addConstraint(Sketcher.Constraint("Distance", 1, Q("2 mm")))
sketch15.addConstraint(Sketcher.Constraint("DistanceX", -1, 1, 2, 2, Q("24.067411 mm")))
sketch15.setExpression("Constraints[9]", "Params.sketch15_length")
pad11 = body.newObject("PartDesign::Pad", "Pad010")
pad11.Profile = sketch15
pad11.setExpression("Length", "Params.pad11_length")

sketch16 = body.newObject("Sketcher::SketchObject", "Sketch015")
sketch16.AttachmentSupport = (doc.getObject("XY_Plane"), [""])
sketch16.MapMode = "FlatFace"
sketch16.AttachmentOffset = App.Placement(App.Vector(0, 0, 10), App.Rotation())
sketch16.addGeometry(Part.LineSegment(App.Vector(13.7, -23.8, 0), App.Vector(0, 0, 0)), False)
sketch16.addGeometry(Part.LineSegment(App.Vector(0, 0, 0), App.Vector(1.7, 1, 0)), False)
sketch16.addGeometry(Part.LineSegment(App.Vector(1.7, 1, 0), App.Vector(15.5, -22.8, 0)), False)
sketch16.addGeometry(Part.LineSegment(App.Vector(15.5, -22.8, 0), App.Vector(13.7, -23.8, 0)), False)
sketch16.addConstraint(Sketcher.Constraint("Coincident", 0, 2, 1, 1))
sketch16.addConstraint(Sketcher.Constraint("Coincident", 1, 2, 2, 1))
sketch16.addConstraint(Sketcher.Constraint("Coincident", 2, 2, 3, 1))
sketch16.addConstraint(Sketcher.Constraint("Coincident", 3, 2, 0, 1))
sketch16.addConstraint(Sketcher.Constraint("Coincident", 0, 2, -1, 1))
sketch16.addConstraint(Sketcher.Constraint("Perpendicular", 0, 1))
sketch16.addConstraint(Sketcher.Constraint("Perpendicular", 1, 2))
sketch16.addConstraint(Sketcher.Constraint("Perpendicular", 2, 3))
sketch16.addConstraint(Sketcher.Constraint("Angle", 0, Q("120 deg")))
sketch16.addConstraint(Sketcher.Constraint("Distance", 1, Q("2 mm")))
sketch16.addConstraint(Sketcher.Constraint("DistanceY", 2, 2, -1, 1, Q("22.783441 mm")))
sketch16.setExpression("Constraints[9]", "Params.sketch16_length")
pad12 = body.newObject("PartDesign::Pad", "Pad011")
pad12.Profile = sketch16
pad12.setExpression("Length", "Params.pad12_length")

sketch17 = body.newObject("Sketcher::SketchObject", "Sketch016")
sketch17.AttachmentSupport = (doc.getObject("XY_Plane"), [""])
sketch17.MapMode = "FlatFace"
sketch17.AttachmentOffset = App.Placement(App.Vector(0, 0, 10), App.Rotation())
sketch17.addGeometry(Part.LineSegment(App.Vector(-15.7, -24.2, 0), App.Vector(-1.8, 0, 0)), False)
sketch17.addGeometry(Part.LineSegment(App.Vector(-1.8, 0, 0), App.Vector(0, -1, 0)), False)
sketch17.addGeometry(Part.LineSegment(App.Vector(0, -1, 0), App.Vector(-14, -25.2, 0)), False)
sketch17.addGeometry(Part.LineSegment(App.Vector(-14, -25.2, 0), App.Vector(-15.7, -24.2, 0)), False)
sketch17.addConstraint(Sketcher.Constraint("Coincident", 0, 2, 1, 1))
sketch17.addConstraint(Sketcher.Constraint("Coincident", 1, 2, 2, 1))
sketch17.addConstraint(Sketcher.Constraint("Coincident", 2, 2, 3, 1))
sketch17.addConstraint(Sketcher.Constraint("Coincident", 3, 2, 0, 1))
sketch17.addConstraint(Sketcher.Constraint("PointOnObject", 0, 2, -1))
sketch17.addConstraint(Sketcher.Constraint("Perpendicular", 0, 1))
sketch17.addConstraint(Sketcher.Constraint("Perpendicular", 1, 2))
sketch17.addConstraint(Sketcher.Constraint("Perpendicular", 2, 3))
sketch17.addConstraint(Sketcher.Constraint("Angle", 0, Q("60 deg")))
sketch17.addConstraint(Sketcher.Constraint("Distance", 1, Q("2 mm")))
sketch17.addConstraint(Sketcher.Constraint("DistanceX", 2, 2, -1, 1, Q("13.989999 mm")))
sketch17.addConstraint(Sketcher.Constraint("Distance", 0, Q("27.9391 mm")))
sketch17.setExpression("Constraints[9]", "Params.sketch17_length")
pad13 = body.newObject("PartDesign::Pad", "Pad012")
pad13.Profile = sketch17
pad13.setExpression("Length", "Params.pad13_length")

sketch18 = body.newObject("Sketcher::SketchObject", "Sketch017")
sketch18.AttachmentSupport = (doc.getObject("XY_Plane"), [""])
sketch18.MapMode = "FlatFace"
sketch18.AttachmentOffset = App.Placement(App.Vector(0, 0, 15), App.Rotation())
sketch18.addGeometry(Part.LineSegment(App.Vector(-22.7, -13.1, 0), App.Vector(0, 0, 0)), False)
sketch18.addGeometry(Part.LineSegment(App.Vector(0, 0, 0), App.Vector(-1, 1.7, 0)), False)
sketch18.addGeometry(Part.LineSegment(App.Vector(-1, 1.7, 0), App.Vector(-23.7, -11.3, 0)), False)
sketch18.addGeometry(Part.LineSegment(App.Vector(-23.7, -11.3, 0), App.Vector(-22.7, -13.1, 0)), False)
sketch18.addConstraint(Sketcher.Constraint("Coincident", 0, 2, 1, 1))
sketch18.addConstraint(Sketcher.Constraint("Coincident", 1, 2, 2, 1))
sketch18.addConstraint(Sketcher.Constraint("Coincident", 2, 2, 3, 1))
sketch18.addConstraint(Sketcher.Constraint("Coincident", 3, 2, 0, 1))
sketch18.addConstraint(Sketcher.Constraint("Coincident", 0, 2, -1, 1))
sketch18.addConstraint(Sketcher.Constraint("Perpendicular", 0, 1))
sketch18.addConstraint(Sketcher.Constraint("Perpendicular", 1, 2))
sketch18.addConstraint(Sketcher.Constraint("Perpendicular", 2, 3))
sketch18.addConstraint(Sketcher.Constraint("Angle", 0, Q("30 deg")))
sketch18.addConstraint(Sketcher.Constraint("Distance", 1, Q("2 mm")))
sketch18.addConstraint(Sketcher.Constraint("DistanceX", 2, 2, -1, 1, Q("23.652442 mm")))
sketch18.setExpression("Constraints[9]", "Params.sketch18_length")
pad14 = body.newObject("PartDesign::Pad", "Pad013")
pad14.Profile = sketch18
pad14.setExpression("Length", "Params.pad14_length")
pad14.Reversed = True

doc.recompute()
